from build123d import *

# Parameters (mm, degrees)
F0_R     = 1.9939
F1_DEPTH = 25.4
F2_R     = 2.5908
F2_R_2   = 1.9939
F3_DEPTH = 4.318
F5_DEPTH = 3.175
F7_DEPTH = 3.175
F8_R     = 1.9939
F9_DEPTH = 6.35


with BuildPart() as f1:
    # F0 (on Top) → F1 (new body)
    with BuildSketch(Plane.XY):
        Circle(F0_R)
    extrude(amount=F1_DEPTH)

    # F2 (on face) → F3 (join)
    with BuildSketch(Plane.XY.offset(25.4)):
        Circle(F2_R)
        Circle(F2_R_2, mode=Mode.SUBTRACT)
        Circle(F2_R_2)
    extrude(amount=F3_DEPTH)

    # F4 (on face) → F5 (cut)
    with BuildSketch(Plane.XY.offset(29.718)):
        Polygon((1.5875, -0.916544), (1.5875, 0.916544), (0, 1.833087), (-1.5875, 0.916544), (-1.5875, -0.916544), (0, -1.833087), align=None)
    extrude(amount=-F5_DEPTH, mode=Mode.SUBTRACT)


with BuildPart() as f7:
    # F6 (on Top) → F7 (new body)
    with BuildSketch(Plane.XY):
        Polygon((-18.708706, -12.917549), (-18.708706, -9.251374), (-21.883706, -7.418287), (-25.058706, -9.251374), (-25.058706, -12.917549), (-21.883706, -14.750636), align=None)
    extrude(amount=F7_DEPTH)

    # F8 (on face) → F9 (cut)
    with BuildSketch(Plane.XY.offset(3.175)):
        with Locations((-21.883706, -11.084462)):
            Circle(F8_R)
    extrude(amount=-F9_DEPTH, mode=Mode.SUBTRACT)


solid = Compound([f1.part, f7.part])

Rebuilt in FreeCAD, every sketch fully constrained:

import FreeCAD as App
import Part
import Sketcher
from FreeCAD import Vector
Q = App.Units.Quantity


def add_polygon(sketch, points):
    """Adds a closed chain of lines whose ends are joined by coincident constraints."""
    first, n = sketch.GeometryCount, len(points)
    for a, b in zip(points, points[1:] + points[:1]):
        sketch.addGeometry(Part.LineSegment(App.Vector(*a, 0), App.Vector(*b, 0)), False)
    for i in range(n):
        sketch.addConstraint(Sketcher.Constraint("Coincident", first + i, 2, first + (i + 1) % n, 1))

doc = App.newDocument("Part")
params = doc.addObject("Spreadsheet::Sheet", "Params")
for row, (alias, value) in enumerate([
    ("sketch1_diameter", "0.157 in"),
    ("pad1_length", "1 in"),
    ("sketch2_diameter", "0.204 in"),
    ("pad2_length", "0.17 in"),
    ("pocket1_length", "0.125 in"),
    ("pad3_length", "0.125 in"),
    ("sketch5_diameter", "0.157 in"),
    ("pocket2_length", "0.25 in"),
], start=1):
    params.set(f"A{row}", alias)
    params.set(f"B{row}", "=" + value)
    params.setAlias(f"B{row}", alias)

body = doc.addObject("PartDesign::Body", "Body")

sketch1 = body.newObject("Sketcher::SketchObject", "Sketch")
sketch1.AttachmentSupport = (doc.getObject("XY_Plane"), [""])
sketch1.MapMode = "FlatFace"
sketch1.addGeometry(Part.Circle(Vector(0, 0, 0), Vector(0, 0, 1), 2), False)
sketch1.addConstraint(Sketcher.Constraint("Coincident", 0, 3, -1, 1))
sketch1.addConstraint(Sketcher.Constraint("Diameter", 0, Q("0.157 in")))
sketch1.setExpression("Constraints[1]", "Params.sketch1_diameter")
pad1 = body.newObject("PartDesign::Pad", "Pad")
pad1.Profile = sketch1
pad1.setExpression("Length", "Params.pad1_length")

sketch2 = body.newObject("Sketcher::SketchObject", "Sketch001")
sketch2.AttachmentSupport = (doc.getObject("XY_Plane"), [""])
sketch2.MapMode = "FlatFace"
sketch2.AttachmentOffset = App.Placement(Vector(0, 0, 1 * 25.4), App.Rotation())
sketch2.addGeometry(Part.Circle(Vector(0, 0, 0), Vector(0, 0, 1), 2.6), False)
sketch2.addConstraint(Sketcher.Constraint("Coincident", 0, 3, -1, 1))
sketch2.addConstraint(Sketcher.Constraint("Diameter", 0, Q("0.204 in")))
sketch2.setExpression("Constraints[1]", "Params.sketch2_diameter")
pad2 = body.newObject("PartDesign::Pad", "Pad001")
pad2.Profile = sketch2
pad2.setExpression("Length", "Params.pad2_length")

sketch3 = body.newObject("Sketcher::SketchObject", "Sketch002")
sketch3.AttachmentSupport = (doc.getObject("XY_Plane"), [""])
sketch3.MapMode = "FlatFace"
sketch3.AttachmentOffset = App.Placement(Vector(0, 0, 1.17 * 25.4), App.Rotation())
add_polygon(sketch3, [(1.6, -0.9), (1.6, 0.9), (0, 1.8), (-1.6, 0.9), (-1.6, -0.9), (0, -1.8)])
sketch3.addConstraint(Sketcher.Constraint("Vertical", 0))
sketch3.addConstraint(Sketcher.Constraint("Vertical", 3))
sketch3.addConstraint(Sketcher.Constraint("Symmetric", 0, 2, 3, 2, -1, 1))
sketch3.addConstraint(Sketcher.Constraint("Symmetric", 1, 2, 4, 2, -1, 1))
sketch3.addConstraint(Sketcher.Constraint("PointOnObject", 1, 2, -2))
sketch3.addConstraint(Sketcher.Constraint("Parallel", 2, 5))
sketch3.addConstraint(Sketcher.Constraint("Horizontal", 0, 2, 2, 2))
sketch3.addConstraint(Sketcher.Constraint("Angle", 1, Q("150.000015 deg")))
sketch3.addConstraint(Sketcher.Constraint("DistanceX", -1, 1, 0, 2, Q("0.0625 in")))
sketch3.addConstraint(Sketcher.Constraint("DistanceY", 0, 1, 0, 2, 1.833088))
pocket1 = body.newObject("PartDesign::Pocket", "Pocket")
pocket1.Profile = sketch3
pocket1.setExpression("Length", "Params.pocket1_length")
body2 = doc.addObject("PartDesign::Body", "Body001")

sketch4 = body2.newObject("Sketcher::SketchObject", "Sketch003")
sketch4.AttachmentSupport = (doc.getObject("XY_Plane001"), [""])
sketch4.MapMode = "FlatFace"
add_polygon(sketch4, [(-18.7, -12.9), (-18.7, -9.3), (-21.9, -7.4), (-25.1, -9.3), (-25.1, -12.9), (-21.9, -14.8)])
sketch4.addConstraint(Sketcher.Constraint("Vertical", 0))
sketch4.addConstraint(Sketcher.Constraint("Vertical", 3))
sketch4.addConstraint(Sketcher.Constraint("Parallel", 1, 4))
sketch4.addConstraint(Sketcher.Constraint("Parallel", 2, 5))
sketch4.addConstraint(Sketcher.Constraint("Horizontal", 0, 2, 2, 2))
sketch4.addConstraint(Sketcher.Constraint("Horizontal", 3, 2, 5, 2))
sketch4.addConstraint(Sketcher.Constraint("Vertical", 1, 2, 4, 2))
sketch4.addConstraint(Sketcher.Constraint("Angle", 1, Q("150.000001 deg")))
sketch4.addConstraint(Sketcher.Constraint("DistanceX", 2, 2, 0, 2, Q("0.25 in")))
sketch4.addConstraint(Sketcher.Constraint("DistanceY", 0, 1, 0, 2, 3.666175))
sketch4.addConstraint(Sketcher.Constraint("DistanceY", 3, 2, -1, 1, 12.917549))
sketch4.addConstraint(Sketcher.Constraint("DistanceX", 0, 2, -1, 1, 18.708706))
pad3 = body2.newObject("PartDesign::Pad", "Pad002")
pad3.Profile = sketch4
pad3.setExpression("Length", "Params.pad3_length")

sketch5 = body2.newObject("Sketcher::SketchObject", "Sketch004")
sketch5.AttachmentSupport = (doc.getObject("XY_Plane001"), [""])
sketch5.MapMode = "FlatFace"
sketch5.AttachmentOffset = App.Placement(Vector(0, 0, 0.125 * 25.4), App.Rotation())
sketch5.addGeometry(Part.Circle(Vector(-21.9, -11.1, 0), Vector(0, 0, 1), 2), False)
sketch5.addConstraint(Sketcher.Constraint("Diameter", 0, Q("0.157 in")))
sketch5.addConstraint(Sketcher.Constraint("DistanceX", 0, 3, -1, 1, 21.883706))
sketch5.addConstraint(Sketcher.Constraint("DistanceY", 0, 3, -1, 1, 11.084462))
sketch5.setExpression("Constraints[0]", "Params.sketch5_diameter")
pocket2 = body2.newObject("PartDesign::Pocket", "Pocket001")
pocket2.Profile = sketch5
pocket2.setExpression("Length", "Params.pocket2_length")

doc.recompute()
